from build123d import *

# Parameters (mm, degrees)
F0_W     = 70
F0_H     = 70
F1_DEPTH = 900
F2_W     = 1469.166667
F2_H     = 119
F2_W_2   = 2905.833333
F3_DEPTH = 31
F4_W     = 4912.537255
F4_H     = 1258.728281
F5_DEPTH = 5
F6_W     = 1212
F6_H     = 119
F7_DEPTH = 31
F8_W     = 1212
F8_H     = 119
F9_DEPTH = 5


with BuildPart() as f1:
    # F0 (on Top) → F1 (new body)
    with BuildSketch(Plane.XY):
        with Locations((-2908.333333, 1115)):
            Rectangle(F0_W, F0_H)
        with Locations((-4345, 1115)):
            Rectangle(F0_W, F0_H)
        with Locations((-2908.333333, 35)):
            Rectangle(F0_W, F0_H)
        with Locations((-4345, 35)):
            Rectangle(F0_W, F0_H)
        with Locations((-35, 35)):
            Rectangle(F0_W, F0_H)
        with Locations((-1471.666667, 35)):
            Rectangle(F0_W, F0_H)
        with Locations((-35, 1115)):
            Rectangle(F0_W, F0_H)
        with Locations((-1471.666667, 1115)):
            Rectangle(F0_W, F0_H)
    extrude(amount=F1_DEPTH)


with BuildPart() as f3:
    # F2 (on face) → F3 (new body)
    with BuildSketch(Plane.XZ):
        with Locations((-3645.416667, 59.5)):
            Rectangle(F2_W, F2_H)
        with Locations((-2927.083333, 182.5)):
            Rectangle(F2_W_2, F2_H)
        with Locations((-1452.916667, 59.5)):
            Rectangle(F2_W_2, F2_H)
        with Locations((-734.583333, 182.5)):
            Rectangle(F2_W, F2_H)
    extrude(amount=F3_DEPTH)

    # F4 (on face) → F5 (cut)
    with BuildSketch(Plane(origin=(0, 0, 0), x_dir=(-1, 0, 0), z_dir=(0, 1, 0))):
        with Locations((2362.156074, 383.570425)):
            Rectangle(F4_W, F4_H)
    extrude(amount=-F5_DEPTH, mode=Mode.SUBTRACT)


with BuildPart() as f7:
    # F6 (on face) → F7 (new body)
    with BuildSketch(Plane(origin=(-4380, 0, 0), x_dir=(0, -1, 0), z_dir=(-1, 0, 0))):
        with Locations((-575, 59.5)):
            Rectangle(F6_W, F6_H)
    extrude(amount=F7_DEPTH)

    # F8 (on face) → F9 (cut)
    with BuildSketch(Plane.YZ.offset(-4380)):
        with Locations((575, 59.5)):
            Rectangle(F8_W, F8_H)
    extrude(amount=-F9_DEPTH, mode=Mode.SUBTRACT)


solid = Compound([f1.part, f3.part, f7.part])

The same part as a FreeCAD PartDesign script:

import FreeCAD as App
import Part
import Sketcher


def add_polygon(sketch, points):
    """Adds a closed chain of lines whose ends are joined by coincident constraints."""
    first, n = sketch.GeometryCount, len(points)
    for a, b in zip(points, points[1:] + points[:1]):
        sketch.addGeometry(Part.LineSegment(App.Vector(*a, 0), App.Vector(*b, 0)), False)
    for i in range(n):
        sketch.addConstraint(Sketcher.Constraint("Coincident", first + i, 2, first + (i + 1) % n, 1))

doc = App.newDocument("Part")
body = doc.addObject("PartDesign::Body", "Body")
body.AllowCompound = True

# Sketch on XY plane
sketch1 = body.newObject("Sketcher::SketchObject", "Sketch")
sketch1.AttachmentSupport = (doc.getObject("XY_Plane"), [""])
sketch1.MapMode = "FlatFace"
add_polygon(sketch1, [(-2943.333333, 1150), (-2943.333333, 1080), (-2873.333333, 1080), (-2873.333333, 1150)])  # lines 0-3
add_polygon(sketch1, [(-4380, 1150), (-4380, 1080), (-4310, 1080), (-4310, 1150)])  # lines 4-7
add_polygon(sketch1, [(-2943.333333, 70), (-2943.333333, 0), (-2873.333333, 0), (-2873.333333, 70)])  # lines 8-11
add_polygon(sketch1, [(-4380, 70), (-4380, 0), (-4310, 0), (-4310, 70)])  # lines 12-15
add_polygon(sketch1, [(-70, 70), (-70, 0), (0, 0), (0, 70)])  # lines 16-19
add_polygon(sketch1, [(-1506.666667, 70), (-1506.666667, 0), (-1436.666667, 0), (-1436.666667, 70)])  # lines 20-23
add_polygon(sketch1, [(-70, 1150), (-70, 1080), (0, 1080), (0, 1150)])  # lines 24-27
add_polygon(sketch1, [(-1506.666667, 1150), (-1506.666667, 1080), (-1436.666667, 1080), (-1436.666667, 1150)])  # lines 28-31
sketch1.addConstraint([
    Sketcher.Constraint("Vertical", 0),
    Sketcher.Constraint("Horizontal", 1),
    Sketcher.Constraint("Vertical", 2),
    Sketcher.Constraint("Horizontal", 3),
    Sketcher.Constraint("Vertical", 4),
    Sketcher.Constraint("Horizontal", 5),
    Sketcher.Constraint("Vertical", 6),
    Sketcher.Constraint("Horizontal", 7),
    Sketcher.Constraint("Vertical", 8),
    Sketcher.Constraint("Horizontal", 9),
    Sketcher.Constraint("Vertical", 10),
    Sketcher.Constraint("Horizontal", 11),
    Sketcher.Constraint("Vertical", 12),
    Sketcher.Constraint("Horizontal", 13),
    Sketcher.Constraint("Vertical", 14),
    Sketcher.Constraint("Horizontal", 15),
    Sketcher.Constraint("Vertical", 16),
    Sketcher.Constraint("Horizontal", 17),
    Sketcher.Constraint("Vertical", 18),
    Sketcher.Constraint("Horizontal", 19),
    Sketcher.Constraint("Vertical", 20),
    Sketcher.Constraint("Horizontal", 21),
    Sketcher.Constraint("Vertical", 22),
    Sketcher.Constraint("Horizontal", 23),
    Sketcher.Constraint("Vertical", 24),
    Sketcher.Constraint("Horizontal", 25),
    Sketcher.Constraint("Vertical", 26),
    Sketcher.Constraint("Horizontal", 27),
    Sketcher.Constraint("Vertical", 28),
    Sketcher.Constraint("Horizontal", 29),
    Sketcher.Constraint("Vertical", 30),
    Sketcher.Constraint("Horizontal", 31),
    Sketcher.Constraint("Coincident", 17, 2, -1, 1),
    Sketcher.Constraint("PointOnObject", 8, 2, -1),
    Sketcher.Constraint("PointOnObject", 12, 2, -1),
    Sketcher.Constraint("PointOnObject", 20, 2, -1),
    Sketcher.Constraint("PointOnObject", 25, 2, -2),
    Sketcher.Constraint("Horizontal", 1, 2, 4, 2),
    Sketcher.Constraint("Horizontal", 3, 2, 6, 2),
    Sketcher.Constraint("Horizontal", 11, 2, 14, 2),
    Sketcher.Constraint("Horizontal", 15, 2, 18, 2),
    Sketcher.Constraint("Horizontal", 19, 2, 22, 2),
    Sketcher.Constraint("Horizontal", 5, 2, 24, 2),
    Sketcher.Constraint("Horizontal", 7, 2, 26, 2),
    Sketcher.Constraint("Horizontal", 25, 2, 28, 2),
    Sketcher.Constraint("Horizontal", 27, 2, 30, 2),
    Sketcher.Constraint("Vertical", 3, 2, 8, 2),
    Sketcher.Constraint("Vertical", 2, 2, 9, 2),
    Sketcher.Constraint("Vertical", 7, 2, 12, 2),
    Sketcher.Constraint("Vertical", 6, 2, 13, 2),
    Sketcher.Constraint("Vertical", 19, 2, 24, 2),
    Sketcher.Constraint("Vertical", 23, 2, 28, 2),
    Sketcher.Constraint("Vertical", 22, 2, 29, 2),
    Sketcher.Constraint("Equal", 3, 5),
    Sketcher.Constraint("Equal", 15, 17),
    Sketcher.Constraint("Equal", 19, 21),
    Sketcher.Constraint("Equal", 31, 0),
    Sketcher.Constraint("Equal", 6, 8),
    Sketcher.Constraint("DistanceX", 1, 1, 1, 2, 70.0),
    Sketcher.Constraint("DistanceY", -1, 1, 0, 2, 1080.0),
    Sketcher.Constraint("DistanceX", 4, 2, -1, 1, 4380.0),
    Sketcher.Constraint("DistanceX", 0, 2, -1, 1, 2943.333333),
    Sketcher.Constraint("DistanceX", 20, 2, -1, 1, 1506.666667),
])
pad1 = body.newObject("PartDesign::Pad", "Pad")
pad1.Profile = sketch1
pad1.Length = 900
body2 = doc.addObject("PartDesign::Body", "Body001")
body2.AllowCompound = True

# Sketch on XZ plane
sketch2 = body2.newObject("Sketcher::SketchObject", "Sketch001")
sketch2.AttachmentSupport = (doc.getObject("XZ_Plane001"), [""])
sketch2.MapMode = "FlatFace"
add_polygon(sketch2, [(-4380.000001, 119), (-4380.000001, 0), (-2910.833334, 0), (-2910.833334, 119)])  # lines 0-3
add_polygon(sketch2, [(-4379.999999, 242), (-4379.999999, 123), (-1474.166667, 123), (-1474.166667, 242)])  # lines 4-7
add_polygon(sketch2, [(-2905.833334, 119), (-2905.833334, 0), (0, 0), (0, 119)])  # lines 8-11
add_polygon(sketch2, [(-1469.166667, 242), (-1469.166667, 123), (0, 123), (0, 242)])  # lines 12-15
sketch2.addConstraint([
    Sketcher.Constraint("Vertical", 0),
    Sketcher.Constraint("Horizontal", 1),
    Sketcher.Constraint("Vertical", 2),
    Sketcher.Constraint("Horizontal", 3),
    Sketcher.Constraint("Vertical", 4),
    Sketcher.Constraint("Horizontal", 5),
    Sketcher.Constraint("Vertical", 6),
    Sketcher.Constraint("Horizontal", 7),
    Sketcher.Constraint("Vertical", 8),
    Sketcher.Constraint("Horizontal", 9),
    Sketcher.Constraint("Vertical", 10),
    Sketcher.Constraint("Horizontal", 11),
    Sketcher.Constraint("Vertical", 12),
    Sketcher.Constraint("Horizontal", 13),
    Sketcher.Constraint("Vertical", 14),
    Sketcher.Constraint("Horizontal", 15),
    Sketcher.Constraint("Coincident", 9, 2, -1, 1),
    Sketcher.Constraint("PointOnObject", 0, 2, -1),
    Sketcher.Constraint("PointOnObject", 13, 2, -2),
    Sketcher.Constraint("Horizontal", 3, 2, 10, 2),
    Sketcher.Constraint("Horizontal", 5, 2, 12, 2),
    Sketcher.Constraint("Horizontal", 7, 2, 14, 2),
    Sketcher.Constraint("Vertical", 3, 2, 4, 2),
    Sketcher.Constraint("Equal", 7, 9),
    Sketcher.Constraint("Equal", 3, 13),
    Sketcher.Constraint("Equal", 2, 4),
    Sketcher.Constraint("DistanceY", 0, 2, 0, 1, 119.0),
    Sketcher.Constraint("DistanceX", 0, 2, -1, 1, 4380.000001),
    Sketcher.Constraint("DistanceY", -1, 1, 4, 2, 123.0),
    Sketcher.Constraint("DistanceX", 1, 2, 8, 2, 5.0),
    Sketcher.Constraint("DistanceX", 1, 1, 1, 2, 1469.166667),
])
pad2 = body2.newObject("PartDesign::Pad", "Pad001")
pad2.Profile = sketch2
pad2.Length = 31

# Sketch on XZ plane
sketch3 = body2.newObject("Sketcher::SketchObject", "Sketch002")
sketch3.AttachmentSupport = (doc.getObject("XZ_Plane001"), [""])
sketch3.MapMode = "FlatFace"
add_polygon(sketch3, [(94.112554, 1012.934565), (94.112554, -245.793715), (-4818.424702, -245.793715), (-4818.424702, 1012.934565)])  # lines 0-3
sketch3.addConstraint([
    Sketcher.Constraint("Vertical", 0),
    Sketcher.Constraint("Horizontal", 1),
    Sketcher.Constraint("Vertical", 2),
    Sketcher.Constraint("Horizontal", 3),
    Sketcher.Constraint("DistanceY", 0, 2, 0, 1, 1258.728281),
    Sketcher.Constraint("DistanceX", 1, 2, -1, 1, 4818.424702),
    Sketcher.Constraint("DistanceX", 1, 2, 1, 1, 4912.537255),
    Sketcher.Constraint("DistanceY", 0, 2, -1, 1, 245.793715),
])
pocket1 = body2.newObject("PartDesign::Pocket", "Pocket")
pocket1.Profile = sketch3
pocket1.Length = 5
pocket1.Reversed = True
body3 = doc.addObject("PartDesign::Body", "Body002")

# Sketch on YZ plane
sketch4 = body3.newObject("Sketcher::SketchObject", "Sketch003")
sketch4.AttachmentSupport = (doc.getObject("YZ_Plane002"), [""])
sketch4.MapMode = "FlatFace"
sketch4.AttachmentOffset = App.Placement(App.Vector(0, 0, -4380), App.Rotation())
add_polygon(sketch4, [(1181, 119), (1181, 0), (-31, 0), (-31, 119)])  # lines 0-3
sketch4.addConstraint([
    Sketcher.Constraint("Vertical", 0),
    Sketcher.Constraint("Horizontal", 1),
    Sketcher.Constraint("Vertical", 2),
    Sketcher.Constraint("Horizontal", 3),
    Sketcher.Constraint("PointOnObject", 0, 2, -1),
    Sketcher.Constraint("DistanceX", 1, 2, 1, 1, 1212.0),
    Sketcher.Constraint("DistanceY", 0, 2, 0, 1, 119.0),
    Sketcher.Constraint("DistanceX", -1, 1, 0, 2, 1181.0),
])
pad3 = body3.newObject("PartDesign::Pad", "Pad002")
pad3.Profile = sketch4
pad3.Length = 31
pad3.Reversed = True

# Sketch on YZ plane
sketch5 = body3.newObject("Sketcher::SketchObject", "Sketch004")
sketch5.AttachmentSupport = (doc.getObject("YZ_Plane002"), [""])
sketch5.MapMode = "FlatFace"
sketch5.AttachmentOffset = App.Placement(App.Vector(0, 0, -4380), App.Rotation())
add_polygon(sketch5, [(-31, 119), (-31, 0), (1181, 0), (1181, 119)])  # lines 0-3
sketch5.addConstraint([
    Sketcher.Constraint("Vertical", 0),
    Sketcher.Constraint("Horizontal", 1),
    Sketcher.Constraint("Vertical", 2),
    Sketcher.Constraint("Horizontal", 3),
    Sketcher.Constraint("PointOnObject", 0, 2, -1),
    Sketcher.Constraint("DistanceX", 1, 1, 1, 2, 1212.0),
    Sketcher.Constraint("DistanceY", 0, 2, 0, 1, 119.0),
    Sketcher.Constraint("DistanceX", 0, 2, -1, 1, 31.0),
])
pocket2 = body3.newObject("PartDesign::Pocket", "Pocket001")
pocket2.Profile = sketch5
pocket2.Length = 5

doc.recompute()
